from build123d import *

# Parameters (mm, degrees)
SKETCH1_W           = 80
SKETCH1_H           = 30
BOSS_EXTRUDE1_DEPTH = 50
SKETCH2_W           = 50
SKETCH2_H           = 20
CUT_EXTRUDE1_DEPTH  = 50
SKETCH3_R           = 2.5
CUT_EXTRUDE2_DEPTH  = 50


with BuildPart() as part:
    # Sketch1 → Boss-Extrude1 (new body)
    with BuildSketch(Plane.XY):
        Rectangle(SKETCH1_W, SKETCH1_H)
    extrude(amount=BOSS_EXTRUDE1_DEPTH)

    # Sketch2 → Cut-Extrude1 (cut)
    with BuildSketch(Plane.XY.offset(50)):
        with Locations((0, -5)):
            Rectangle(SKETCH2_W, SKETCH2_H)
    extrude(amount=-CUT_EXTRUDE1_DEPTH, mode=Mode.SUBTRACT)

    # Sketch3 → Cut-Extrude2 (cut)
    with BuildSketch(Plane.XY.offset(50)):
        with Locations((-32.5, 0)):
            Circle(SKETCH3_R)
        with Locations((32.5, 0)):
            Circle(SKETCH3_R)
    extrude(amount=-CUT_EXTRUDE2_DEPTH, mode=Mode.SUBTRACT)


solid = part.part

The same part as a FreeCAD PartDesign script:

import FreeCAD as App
import Part
import Sketcher

V = App.Vector
Q = App.Units.Quantity

doc = App.newDocument("Part")
params = doc.addObject("Spreadsheet::Sheet", "Params")
for row, (alias, value) in enumerate([
    ("sketch1_width", "80 mm"),
    ("sketch1_height", "30 mm"),
    ("pad1_length", "50 mm"),
    ("sketch2_width", "50 mm"),
    ("sketch2_height", "20 mm"),
    ("pocket1_length", "50 mm"),
    ("sketch3_diameter", "5 mm"),
    ("pocket2_length", "50 mm"),
], start=1):
    params.set(f"A{row}", alias)
    params.set(f"B{row}", "=" + value)
    params.setAlias(f"B{row}", alias)

body = doc.addObject("PartDesign::Body", "Body")

# Sketch on XY plane
sketch1 = body.newObject("Sketcher::SketchObject", "Sketch")
sketch1.AttachmentSupport = (doc.getObject("XY_Plane"), [""])
sketch1.MapMode = "FlatFace"
sketch1.addGeometry(Part.LineSegment(V(-40, 15, 0), V(-40, -15, 0)), False)
sketch1.addGeometry(Part.LineSegment(V(-40, -15, 0), V(40, -15, 0)), False)
sketch1.addGeometry(Part.LineSegment(V(40, -15, 0), V(40, 15, 0)), False)
sketch1.addGeometry(Part.LineSegment(V(40, 15, 0), V(-40, 15, 0)), False)
sketch1.addConstraint(Sketcher.Constraint("Coincident", 0, 2, 1, 1))
sketch1.addConstraint(Sketcher.Constraint("Coincident", 1, 2, 2, 1))
sketch1.addConstraint(Sketcher.Constraint("Coincident", 2, 2, 3, 1))
sketch1.addConstraint(Sketcher.Constraint("Coincident", 3, 2, 0, 1))
sketch1.addConstraint(Sketcher.Constraint("Vertical", 0))
sketch1.addConstraint(Sketcher.Constraint("Horizontal", 1))
sketch1.addConstraint(Sketcher.Constraint("Vertical", 2))
sketch1.addConstraint(Sketcher.Constraint("Horizontal", 3))
sketch1.addConstraint(Sketcher.Constraint("Symmetric", 0, 2, 2, 2, -1, 1))
sketch1.addConstraint(Sketcher.Constraint("DistanceX", 1, 1, 1, 2, Q("80 mm")))
sketch1.addConstraint(Sketcher.Constraint("DistanceY", 0, 2, 0, 1, Q("30 mm")))
sketch1.setExpression("Constraints[9]", "Params.sketch1_width")
sketch1.setExpression("Constraints[10]", "Params.sketch1_height")
pad1 = body.newObject("PartDesign::Pad", "Pad")
pad1.Profile = sketch1
pad1.setExpression("Length", "Params.pad1_length")

# Sketch on XY plane
sketch2 = body.newObject("Sketcher::SketchObject", "Sketch001")
sketch2.AttachmentSupport = (doc.getObject("XY_Plane"), [""])
sketch2.MapMode = "FlatFace"
sketch2.AttachmentOffset = App.Placement(V(0, 0, 50), App.Rotation())
sketch2.addGeometry(Part.LineSegment(V(-25, 5, 0), V(-25, -15, 0)), False)
sketch2.addGeometry(Part.LineSegment(V(-25, -15, 0), V(25, -15, 0)), False)
sketch2.addGeometry(Part.LineSegment(V(25, -15, 0), V(25, 5, 0)), False)
sketch2.addGeometry(Part.LineSegment(V(25, 5, 0), V(-25, 5, 0)), False)
sketch2.addConstraint(Sketcher.Constraint("Coincident", 0, 2, 1, 1))
sketch2.addConstraint(Sketcher.Constraint("Coincident", 1, 2, 2, 1))
sketch2.addConstraint(Sketcher.Constraint("Coincident", 2, 2, 3, 1))
sketch2.addConstraint(Sketcher.Constraint("Coincident", 3, 2, 0, 1))
sketch2.addConstraint(Sketcher.Constraint("Vertical", 0))
sketch2.addConstraint(Sketcher.Constraint("Horizontal", 1))
sketch2.addConstraint(Sketcher.Constraint("Vertical", 2))
sketch2.addConstraint(Sketcher.Constraint("Horizontal", 3))
sketch2.addConstraint(Sketcher.Constraint("DistanceX", 1, 1, 1, 2, Q("50 mm")))
sketch2.addConstraint(Sketcher.Constraint("DistanceY", 0, 2, 0, 1, Q("20 mm")))
sketch2.addConstraint(Sketcher.Constraint("DistanceX", 0, 2, -1, 1, Q("25 mm")))
sketch2.addConstraint(Sketcher.Constraint("DistanceY", 0, 2, -1, 1, Q("15 mm")))
sketch2.setExpression("Constraints[8]", "Params.sketch2_width")
sketch2.setExpression("Constraints[9]", "Params.sketch2_height")
pocket1 = body.newObject("PartDesign::Pocket", "Pocket")
pocket1.Profile = sketch2
pocket1.setExpression("Length", "Params.pocket1_length")

# Sketch on XY plane
sketch3 = body.newObject("Sketcher::SketchObject", "Sketch002")
sketch3.AttachmentSupport = (doc.getObject("XY_Plane"), [""])
sketch3.MapMode = "FlatFace"
sketch3.AttachmentOffset = App.Placement(V(0, 0, 50), App.Rotation())
sketch3.addGeometry(Part.Circle(V(-32.5, 0, 0), V(0, 0, 1), 2.5), False)
sketch3.addGeometry(Part.Circle(V(32.5, 0, 0), V(0, 0, 1), 2.5), False)
sketch3.addConstraint(Sketcher.Constraint("Equal", 0, 1))
sketch3.addConstraint(Sketcher.Constraint("Symmetric", 0, 3, 1, 3, -1, 1))
sketch3.addConstraint(Sketcher.Constraint("PointOnObject", 0, 3, -1))
sketch3.addConstraint(Sketcher.Constraint("Diameter", 0, Q("5 mm")))
sketch3.addConstraint(Sketcher.Constraint("DistanceX", 0, 3, 1, 3, Q("65 mm")))
sketch3.setExpression("Constraints[3]", "Params.sketch3_diameter")
pocket2 = body.newObject("PartDesign::Pocket", "Pocket001")
pocket2.Profile = sketch3
pocket2.setExpression("Length", "Params.pocket2_length")

doc.recompute()
